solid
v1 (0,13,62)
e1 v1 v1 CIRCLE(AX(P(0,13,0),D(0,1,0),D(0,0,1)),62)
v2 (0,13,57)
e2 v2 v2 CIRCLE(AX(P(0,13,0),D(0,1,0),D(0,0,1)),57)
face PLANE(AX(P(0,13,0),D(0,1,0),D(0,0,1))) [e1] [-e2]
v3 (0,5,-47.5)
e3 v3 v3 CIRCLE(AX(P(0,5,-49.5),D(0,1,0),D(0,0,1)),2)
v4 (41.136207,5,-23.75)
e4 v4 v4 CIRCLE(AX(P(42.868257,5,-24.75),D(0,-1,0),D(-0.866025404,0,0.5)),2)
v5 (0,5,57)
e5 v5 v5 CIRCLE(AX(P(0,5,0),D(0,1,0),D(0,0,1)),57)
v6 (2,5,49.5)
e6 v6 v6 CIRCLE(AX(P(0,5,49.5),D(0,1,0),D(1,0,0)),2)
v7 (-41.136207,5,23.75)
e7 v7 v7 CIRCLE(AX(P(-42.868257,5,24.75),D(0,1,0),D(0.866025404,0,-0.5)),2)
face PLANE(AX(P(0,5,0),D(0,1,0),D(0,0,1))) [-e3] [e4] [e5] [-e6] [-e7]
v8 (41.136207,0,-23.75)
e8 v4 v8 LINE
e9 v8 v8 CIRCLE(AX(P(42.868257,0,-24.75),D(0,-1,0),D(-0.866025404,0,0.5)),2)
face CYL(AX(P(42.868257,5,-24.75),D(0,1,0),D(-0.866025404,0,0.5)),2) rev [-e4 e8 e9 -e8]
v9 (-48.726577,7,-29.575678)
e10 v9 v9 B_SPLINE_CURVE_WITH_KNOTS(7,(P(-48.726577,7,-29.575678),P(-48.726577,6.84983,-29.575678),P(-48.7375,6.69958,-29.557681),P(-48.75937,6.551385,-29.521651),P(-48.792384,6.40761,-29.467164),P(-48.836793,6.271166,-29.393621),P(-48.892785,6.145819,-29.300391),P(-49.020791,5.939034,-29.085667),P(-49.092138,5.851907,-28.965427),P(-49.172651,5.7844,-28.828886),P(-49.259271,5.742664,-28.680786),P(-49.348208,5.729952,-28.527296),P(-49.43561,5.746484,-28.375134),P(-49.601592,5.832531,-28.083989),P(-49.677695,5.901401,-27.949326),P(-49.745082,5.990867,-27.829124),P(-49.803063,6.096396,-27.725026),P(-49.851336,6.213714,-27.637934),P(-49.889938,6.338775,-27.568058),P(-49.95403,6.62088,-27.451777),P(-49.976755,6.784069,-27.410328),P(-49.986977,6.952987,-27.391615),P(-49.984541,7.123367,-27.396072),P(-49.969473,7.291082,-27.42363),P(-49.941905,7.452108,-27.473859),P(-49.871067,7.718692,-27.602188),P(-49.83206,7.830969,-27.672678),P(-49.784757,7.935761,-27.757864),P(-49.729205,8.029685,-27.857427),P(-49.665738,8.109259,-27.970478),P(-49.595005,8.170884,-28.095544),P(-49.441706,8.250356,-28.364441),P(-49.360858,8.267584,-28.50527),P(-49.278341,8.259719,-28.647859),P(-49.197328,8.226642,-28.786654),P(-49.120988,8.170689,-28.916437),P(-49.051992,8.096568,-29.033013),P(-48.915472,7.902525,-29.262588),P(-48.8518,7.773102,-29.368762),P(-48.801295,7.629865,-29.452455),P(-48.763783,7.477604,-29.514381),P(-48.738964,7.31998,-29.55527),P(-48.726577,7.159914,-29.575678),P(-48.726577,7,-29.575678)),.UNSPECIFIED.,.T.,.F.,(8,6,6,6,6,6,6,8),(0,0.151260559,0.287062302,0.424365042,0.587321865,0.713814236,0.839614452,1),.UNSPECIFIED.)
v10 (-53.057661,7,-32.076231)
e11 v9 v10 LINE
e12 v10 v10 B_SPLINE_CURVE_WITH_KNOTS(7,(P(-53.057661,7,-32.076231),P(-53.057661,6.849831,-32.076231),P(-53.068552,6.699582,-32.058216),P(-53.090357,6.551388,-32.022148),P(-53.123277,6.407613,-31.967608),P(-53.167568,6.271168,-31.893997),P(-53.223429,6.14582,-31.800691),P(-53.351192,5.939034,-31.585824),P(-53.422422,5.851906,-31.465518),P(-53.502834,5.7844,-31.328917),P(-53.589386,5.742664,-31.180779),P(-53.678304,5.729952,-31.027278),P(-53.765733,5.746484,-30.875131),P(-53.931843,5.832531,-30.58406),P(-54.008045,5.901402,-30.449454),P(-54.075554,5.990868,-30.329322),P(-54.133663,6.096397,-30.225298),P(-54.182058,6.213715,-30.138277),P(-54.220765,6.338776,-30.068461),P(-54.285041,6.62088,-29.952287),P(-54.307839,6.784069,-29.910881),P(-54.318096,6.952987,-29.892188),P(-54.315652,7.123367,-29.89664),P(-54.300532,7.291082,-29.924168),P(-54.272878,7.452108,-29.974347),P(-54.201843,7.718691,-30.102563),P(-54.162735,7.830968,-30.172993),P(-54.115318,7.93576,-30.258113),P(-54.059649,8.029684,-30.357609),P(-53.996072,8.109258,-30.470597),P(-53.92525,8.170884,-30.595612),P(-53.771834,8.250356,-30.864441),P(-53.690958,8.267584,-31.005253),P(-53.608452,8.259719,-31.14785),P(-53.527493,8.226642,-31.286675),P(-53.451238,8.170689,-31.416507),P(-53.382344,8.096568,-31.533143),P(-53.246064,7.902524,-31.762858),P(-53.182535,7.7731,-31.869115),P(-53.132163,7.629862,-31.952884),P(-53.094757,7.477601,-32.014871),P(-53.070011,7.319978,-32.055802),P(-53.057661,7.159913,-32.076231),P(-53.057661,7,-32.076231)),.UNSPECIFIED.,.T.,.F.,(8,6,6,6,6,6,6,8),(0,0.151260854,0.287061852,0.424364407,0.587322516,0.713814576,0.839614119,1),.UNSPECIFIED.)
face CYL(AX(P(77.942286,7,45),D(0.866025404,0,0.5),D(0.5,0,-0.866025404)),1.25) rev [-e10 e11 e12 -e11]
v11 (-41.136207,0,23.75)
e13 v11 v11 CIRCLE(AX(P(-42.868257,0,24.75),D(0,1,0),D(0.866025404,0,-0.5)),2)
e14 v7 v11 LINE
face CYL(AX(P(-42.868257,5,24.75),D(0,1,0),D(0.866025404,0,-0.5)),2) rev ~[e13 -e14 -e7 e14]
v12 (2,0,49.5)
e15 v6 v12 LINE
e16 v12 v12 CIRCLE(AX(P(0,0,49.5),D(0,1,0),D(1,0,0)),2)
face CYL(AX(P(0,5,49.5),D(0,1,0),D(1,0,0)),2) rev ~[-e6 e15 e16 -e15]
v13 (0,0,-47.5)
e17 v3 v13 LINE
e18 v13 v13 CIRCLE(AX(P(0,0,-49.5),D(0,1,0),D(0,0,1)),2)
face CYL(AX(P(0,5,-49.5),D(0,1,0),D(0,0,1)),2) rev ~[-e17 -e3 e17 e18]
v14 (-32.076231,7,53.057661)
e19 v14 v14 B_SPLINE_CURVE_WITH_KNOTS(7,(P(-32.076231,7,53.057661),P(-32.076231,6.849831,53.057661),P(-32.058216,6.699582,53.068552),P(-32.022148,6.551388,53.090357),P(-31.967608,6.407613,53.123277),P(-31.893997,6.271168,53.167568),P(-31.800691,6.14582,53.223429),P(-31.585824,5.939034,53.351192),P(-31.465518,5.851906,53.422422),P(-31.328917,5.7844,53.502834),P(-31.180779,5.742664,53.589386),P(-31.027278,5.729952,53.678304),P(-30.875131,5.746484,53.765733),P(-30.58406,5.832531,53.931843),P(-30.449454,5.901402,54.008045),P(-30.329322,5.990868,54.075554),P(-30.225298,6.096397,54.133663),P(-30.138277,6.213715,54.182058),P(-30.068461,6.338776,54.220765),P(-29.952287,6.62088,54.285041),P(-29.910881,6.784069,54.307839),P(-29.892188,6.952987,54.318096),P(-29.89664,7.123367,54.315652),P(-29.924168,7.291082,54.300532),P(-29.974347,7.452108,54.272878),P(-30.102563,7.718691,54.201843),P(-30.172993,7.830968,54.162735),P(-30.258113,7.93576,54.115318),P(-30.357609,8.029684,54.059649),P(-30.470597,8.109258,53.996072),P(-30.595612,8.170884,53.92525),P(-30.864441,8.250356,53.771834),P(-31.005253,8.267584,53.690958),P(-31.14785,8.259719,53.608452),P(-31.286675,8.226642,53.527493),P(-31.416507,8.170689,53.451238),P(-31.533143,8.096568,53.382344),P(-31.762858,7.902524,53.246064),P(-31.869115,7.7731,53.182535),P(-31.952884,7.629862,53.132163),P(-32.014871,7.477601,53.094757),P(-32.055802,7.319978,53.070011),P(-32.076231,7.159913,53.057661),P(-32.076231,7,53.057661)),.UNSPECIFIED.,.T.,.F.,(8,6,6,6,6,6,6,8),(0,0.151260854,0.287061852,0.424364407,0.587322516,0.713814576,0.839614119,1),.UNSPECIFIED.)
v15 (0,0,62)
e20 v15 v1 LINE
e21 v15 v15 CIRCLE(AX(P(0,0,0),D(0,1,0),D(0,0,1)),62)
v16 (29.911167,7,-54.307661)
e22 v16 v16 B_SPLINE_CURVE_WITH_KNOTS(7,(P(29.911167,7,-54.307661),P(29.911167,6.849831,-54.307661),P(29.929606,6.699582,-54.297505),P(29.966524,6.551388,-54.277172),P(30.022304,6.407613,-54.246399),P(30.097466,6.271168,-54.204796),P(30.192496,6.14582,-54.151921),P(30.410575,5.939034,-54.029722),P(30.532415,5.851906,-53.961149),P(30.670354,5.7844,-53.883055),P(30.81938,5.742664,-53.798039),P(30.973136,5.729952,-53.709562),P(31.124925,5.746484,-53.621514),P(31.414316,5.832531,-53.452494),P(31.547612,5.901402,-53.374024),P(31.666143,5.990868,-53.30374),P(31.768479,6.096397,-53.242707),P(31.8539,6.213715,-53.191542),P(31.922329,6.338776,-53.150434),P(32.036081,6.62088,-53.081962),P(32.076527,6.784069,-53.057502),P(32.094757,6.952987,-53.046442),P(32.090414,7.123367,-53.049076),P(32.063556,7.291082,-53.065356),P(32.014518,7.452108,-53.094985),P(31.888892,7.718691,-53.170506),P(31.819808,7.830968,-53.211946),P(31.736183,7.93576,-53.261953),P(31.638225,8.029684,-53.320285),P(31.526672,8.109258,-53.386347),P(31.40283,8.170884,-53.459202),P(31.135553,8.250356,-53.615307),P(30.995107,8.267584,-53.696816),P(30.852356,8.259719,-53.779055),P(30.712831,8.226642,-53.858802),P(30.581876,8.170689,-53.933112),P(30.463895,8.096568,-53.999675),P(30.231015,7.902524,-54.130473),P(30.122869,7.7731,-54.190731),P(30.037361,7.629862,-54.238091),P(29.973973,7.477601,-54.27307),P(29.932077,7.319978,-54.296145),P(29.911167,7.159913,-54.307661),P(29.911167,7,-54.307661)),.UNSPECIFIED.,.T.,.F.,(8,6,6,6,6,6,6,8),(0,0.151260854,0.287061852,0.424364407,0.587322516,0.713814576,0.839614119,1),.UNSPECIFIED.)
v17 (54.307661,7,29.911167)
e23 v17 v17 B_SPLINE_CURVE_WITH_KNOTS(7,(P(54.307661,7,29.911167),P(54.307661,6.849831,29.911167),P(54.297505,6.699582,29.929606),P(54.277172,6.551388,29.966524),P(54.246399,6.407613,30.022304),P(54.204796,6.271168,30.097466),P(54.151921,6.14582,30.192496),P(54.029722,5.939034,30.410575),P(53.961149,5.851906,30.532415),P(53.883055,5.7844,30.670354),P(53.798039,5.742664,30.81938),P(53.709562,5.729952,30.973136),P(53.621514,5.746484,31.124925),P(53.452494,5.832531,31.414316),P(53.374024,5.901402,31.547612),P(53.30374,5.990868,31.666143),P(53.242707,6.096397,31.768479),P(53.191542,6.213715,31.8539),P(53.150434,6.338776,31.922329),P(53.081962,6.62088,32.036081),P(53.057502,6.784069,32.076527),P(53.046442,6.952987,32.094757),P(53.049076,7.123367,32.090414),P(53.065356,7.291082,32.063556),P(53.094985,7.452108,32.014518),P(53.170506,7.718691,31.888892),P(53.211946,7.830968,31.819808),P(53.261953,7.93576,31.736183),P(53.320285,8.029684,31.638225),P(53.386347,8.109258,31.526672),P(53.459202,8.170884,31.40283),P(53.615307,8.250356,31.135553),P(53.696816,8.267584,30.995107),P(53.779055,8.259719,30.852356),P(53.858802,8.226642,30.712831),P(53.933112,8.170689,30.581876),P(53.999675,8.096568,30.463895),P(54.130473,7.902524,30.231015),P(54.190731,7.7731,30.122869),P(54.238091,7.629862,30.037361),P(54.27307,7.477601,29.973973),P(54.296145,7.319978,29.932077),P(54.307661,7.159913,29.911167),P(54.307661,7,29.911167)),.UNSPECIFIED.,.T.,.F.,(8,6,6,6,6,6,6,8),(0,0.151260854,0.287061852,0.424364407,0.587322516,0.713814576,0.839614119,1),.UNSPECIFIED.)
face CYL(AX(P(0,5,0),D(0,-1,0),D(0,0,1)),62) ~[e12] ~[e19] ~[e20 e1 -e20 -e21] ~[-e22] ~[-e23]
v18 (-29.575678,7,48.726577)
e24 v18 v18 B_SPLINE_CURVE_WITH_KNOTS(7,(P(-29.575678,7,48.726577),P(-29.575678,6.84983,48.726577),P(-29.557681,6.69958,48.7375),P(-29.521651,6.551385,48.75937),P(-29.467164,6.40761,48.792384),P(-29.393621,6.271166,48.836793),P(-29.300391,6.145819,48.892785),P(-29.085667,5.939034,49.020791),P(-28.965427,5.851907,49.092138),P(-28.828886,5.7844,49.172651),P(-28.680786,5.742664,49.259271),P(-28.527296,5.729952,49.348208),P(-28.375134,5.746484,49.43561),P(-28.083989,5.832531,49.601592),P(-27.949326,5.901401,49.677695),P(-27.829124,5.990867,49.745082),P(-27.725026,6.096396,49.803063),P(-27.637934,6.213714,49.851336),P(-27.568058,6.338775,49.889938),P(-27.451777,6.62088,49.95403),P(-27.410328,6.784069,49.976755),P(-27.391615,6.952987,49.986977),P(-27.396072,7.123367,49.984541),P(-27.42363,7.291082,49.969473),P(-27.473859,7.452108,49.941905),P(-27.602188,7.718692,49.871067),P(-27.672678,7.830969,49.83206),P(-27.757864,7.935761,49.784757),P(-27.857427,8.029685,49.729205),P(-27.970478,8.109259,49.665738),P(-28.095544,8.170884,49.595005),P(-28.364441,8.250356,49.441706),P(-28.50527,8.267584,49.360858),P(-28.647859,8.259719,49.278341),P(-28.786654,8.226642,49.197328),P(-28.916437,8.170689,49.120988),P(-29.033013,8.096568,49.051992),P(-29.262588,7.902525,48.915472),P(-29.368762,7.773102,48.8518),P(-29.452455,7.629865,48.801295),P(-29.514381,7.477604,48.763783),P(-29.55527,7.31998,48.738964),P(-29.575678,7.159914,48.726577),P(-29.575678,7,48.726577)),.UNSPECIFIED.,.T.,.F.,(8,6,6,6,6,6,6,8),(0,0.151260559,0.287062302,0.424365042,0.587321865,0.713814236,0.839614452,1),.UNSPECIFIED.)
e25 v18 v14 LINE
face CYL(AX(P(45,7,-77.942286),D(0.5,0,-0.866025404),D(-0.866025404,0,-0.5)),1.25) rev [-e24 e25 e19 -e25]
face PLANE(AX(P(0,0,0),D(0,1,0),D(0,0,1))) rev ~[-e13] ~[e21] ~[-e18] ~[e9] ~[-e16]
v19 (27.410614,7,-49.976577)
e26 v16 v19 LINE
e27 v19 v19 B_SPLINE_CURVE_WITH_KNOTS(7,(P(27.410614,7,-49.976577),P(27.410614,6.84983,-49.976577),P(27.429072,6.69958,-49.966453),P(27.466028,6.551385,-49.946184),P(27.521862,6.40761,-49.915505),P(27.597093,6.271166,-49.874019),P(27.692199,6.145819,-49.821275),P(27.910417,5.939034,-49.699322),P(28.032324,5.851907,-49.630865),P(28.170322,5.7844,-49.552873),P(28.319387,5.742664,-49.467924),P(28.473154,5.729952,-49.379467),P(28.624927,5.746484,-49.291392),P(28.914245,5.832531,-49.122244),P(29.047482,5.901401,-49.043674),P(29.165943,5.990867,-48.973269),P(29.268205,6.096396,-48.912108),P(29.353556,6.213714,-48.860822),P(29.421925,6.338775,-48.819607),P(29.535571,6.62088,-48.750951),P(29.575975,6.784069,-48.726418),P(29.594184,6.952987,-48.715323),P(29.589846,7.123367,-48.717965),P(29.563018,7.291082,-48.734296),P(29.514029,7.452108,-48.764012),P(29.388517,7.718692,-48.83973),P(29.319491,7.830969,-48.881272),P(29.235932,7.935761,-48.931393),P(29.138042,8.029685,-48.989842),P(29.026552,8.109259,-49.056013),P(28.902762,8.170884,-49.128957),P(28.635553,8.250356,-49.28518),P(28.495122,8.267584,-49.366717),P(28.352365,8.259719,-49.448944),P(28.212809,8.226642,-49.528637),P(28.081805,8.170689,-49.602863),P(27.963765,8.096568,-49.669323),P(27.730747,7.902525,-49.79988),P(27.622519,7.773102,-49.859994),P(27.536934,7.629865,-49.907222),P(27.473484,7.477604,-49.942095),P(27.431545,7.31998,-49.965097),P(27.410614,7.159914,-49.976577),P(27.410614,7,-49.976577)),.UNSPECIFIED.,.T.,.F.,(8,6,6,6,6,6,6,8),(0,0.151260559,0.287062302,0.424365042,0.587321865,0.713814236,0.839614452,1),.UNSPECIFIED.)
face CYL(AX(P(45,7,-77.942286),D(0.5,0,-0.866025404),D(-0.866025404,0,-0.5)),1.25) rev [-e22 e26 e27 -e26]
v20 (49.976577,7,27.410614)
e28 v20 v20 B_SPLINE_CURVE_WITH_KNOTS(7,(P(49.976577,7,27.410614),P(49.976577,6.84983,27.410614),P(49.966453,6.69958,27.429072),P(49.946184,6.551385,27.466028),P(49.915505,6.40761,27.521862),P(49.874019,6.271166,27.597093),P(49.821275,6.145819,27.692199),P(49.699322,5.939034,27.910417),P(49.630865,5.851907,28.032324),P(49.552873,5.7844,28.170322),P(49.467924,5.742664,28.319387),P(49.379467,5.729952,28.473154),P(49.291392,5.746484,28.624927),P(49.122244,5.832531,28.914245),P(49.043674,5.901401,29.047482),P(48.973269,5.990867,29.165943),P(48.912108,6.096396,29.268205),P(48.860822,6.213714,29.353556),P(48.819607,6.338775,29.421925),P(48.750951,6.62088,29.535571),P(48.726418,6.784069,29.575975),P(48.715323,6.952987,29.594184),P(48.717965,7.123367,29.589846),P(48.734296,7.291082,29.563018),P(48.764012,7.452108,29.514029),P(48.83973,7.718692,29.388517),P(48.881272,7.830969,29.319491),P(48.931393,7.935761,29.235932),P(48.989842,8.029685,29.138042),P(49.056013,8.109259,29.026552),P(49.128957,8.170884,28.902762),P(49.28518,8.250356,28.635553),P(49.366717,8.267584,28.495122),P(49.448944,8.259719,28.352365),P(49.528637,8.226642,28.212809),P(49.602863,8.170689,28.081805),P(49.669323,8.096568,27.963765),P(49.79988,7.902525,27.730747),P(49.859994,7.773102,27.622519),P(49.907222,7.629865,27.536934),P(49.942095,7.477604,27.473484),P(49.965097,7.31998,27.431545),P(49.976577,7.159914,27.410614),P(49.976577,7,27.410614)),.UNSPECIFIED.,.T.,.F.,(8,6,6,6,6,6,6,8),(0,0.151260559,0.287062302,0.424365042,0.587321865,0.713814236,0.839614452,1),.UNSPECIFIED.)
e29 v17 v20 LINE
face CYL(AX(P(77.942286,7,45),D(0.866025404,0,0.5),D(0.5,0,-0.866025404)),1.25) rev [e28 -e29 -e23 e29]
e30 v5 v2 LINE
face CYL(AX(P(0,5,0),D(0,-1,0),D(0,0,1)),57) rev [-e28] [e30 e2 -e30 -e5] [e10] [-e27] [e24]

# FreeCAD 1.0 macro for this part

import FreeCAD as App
import Part
import Sketcher

V = App.Vector
Q = App.Units.Quantity

doc = App.newDocument("Part")
body = doc.addObject("PartDesign::Body", "Body")

# Sketch on XZ plane
sketch1 = doc.addObject("Sketcher::SketchObject", "Sketch")
body.addObject(sketch1)
sketch1.AttachmentSupport = (doc.XZ_Plane, [""])
sketch1.MapMode = "FlatFace"
sketch1.addGeometry(Part.Circle(V(0, 0, 0), V(0, 0, 1), 62), False)
sketch1.addConstraint([
    Sketcher.Constraint("Coincident", 0, 3, -1, 1),
    Sketcher.Constraint("Diameter", 0, Q("124 mm")),
])
pad1 = doc.addObject("PartDesign::Pad", "Pad")
body.addObject(pad1)
pad1.Profile = sketch1
pad1.Length = 5
pad1.Reversed = True

# Sketch on XZ plane
sketch2 = doc.addObject("Sketcher::SketchObject", "Sketch001")
body.addObject(sketch2)
sketch2.AttachmentSupport = (doc.XZ_Plane, [""])
sketch2.MapMode = "FlatFace"
sketch2.AttachmentOffset = App.Placement(V(0, 0, -5), App.Rotation())
sketch2.addGeometry(Part.Circle(V(0, -49.5, 0), V(0, 0, 1), 2), False)
sketch2.addConstraint([
    Sketcher.Constraint("PointOnObject", 0, 3, -2),
    Sketcher.Constraint("Diameter", 0, Q("4 mm")),
    Sketcher.Constraint("DistanceY", 0, 3, -1, 1, Q("49.5 mm")),
])
pocket1 = doc.addObject("PartDesign::Pocket", "Pocket")
body.addObject(pocket1)
pocket1.Profile = sketch2
pocket1.Length = 5
pocket1.Reversed = True
doc.recompute()

polarpattern = doc.addObject("PartDesign::PolarPattern", "PolarPattern")
body.addObject(polarpattern)
polarpattern.Originals = [pocket1]
polarpattern.Axis = (doc.Y_Axis, [""])
polarpattern.Angle = 120
polarpattern.Occurrences = 2
body.Tip = polarpattern
doc.recompute()

datumplane = doc.addObject("PartDesign::Plane", "DatumPlane")
body.addObject(datumplane)
datumplane.Placement = App.Placement(V(0, 0, 0), App.Rotation(V(0.5, 0, -0.866025404), V(0, -1, 0), V(-0.866025404, 0, -0.5), "ZXY"))
mirrored = doc.addObject("PartDesign::Mirrored", "Mirrored")
body.addObject(mirrored)
mirrored.Originals = [pocket1]
mirrored.MirrorPlane = (datumplane, [""])
body.Tip = mirrored

# Sketch on XZ plane
sketch3 = doc.addObject("Sketcher::SketchObject", "Sketch002")
body.addObject(sketch3)
sketch3.AttachmentSupport = (doc.XZ_Plane, [""])
sketch3.MapMode = "FlatFace"
sketch3.AttachmentOffset = App.Placement(V(0, 0, -5), App.Rotation())
sketch3.addGeometry(Part.Circle(V(0, 49.5, 0), V(0, 0, 1), 2), False)
sketch3.addConstraint([
    Sketcher.Constraint("PointOnObject", 0, 3, -2),
    Sketcher.Constraint("Diameter", 0, Q("4 mm")),
    Sketcher.Constraint("DistanceY", -1, 1, 0, 3, Q("49.5 mm")),
])
pocket2 = doc.addObject("PartDesign::Pocket", "Pocket001")
body.addObject(pocket2)
pocket2.Profile = sketch3
pocket2.Length = 5
pocket2.Reversed = True

# Sketch on XZ plane
sketch4 = doc.addObject("Sketcher::SketchObject", "Sketch003")
body.addObject(sketch4)
sketch4.AttachmentSupport = (doc.XZ_Plane, [""])
sketch4.MapMode = "FlatFace"
sketch4.AttachmentOffset = App.Placement(V(0, 0, -5), App.Rotation())
sketch4.addGeometry([
    Part.Circle(V(0, 0, 0), V(0, 0, 1), 62),
    Part.Circle(V(0, 0, 0), V(0, 0, 1), 57),
], False)
sketch4.addConstraint([
    Sketcher.Constraint("Coincident", 0, 3, -1, 1),
    Sketcher.Constraint("Coincident", 1, 3, -1, 1),
    Sketcher.Constraint("Diameter", 0, Q("124 mm")),
    Sketcher.Constraint("Diameter", 1, Q("114 mm")),
])
pad2 = doc.addObject("PartDesign::Pad", "Pad001")
body.addObject(pad2)
pad2.Profile = sketch4
pad2.Length = 8
pad2.Reversed = True

# Sketch on an angled plane
sketch5 = doc.addObject("Sketcher::SketchObject", "Sketch004")
body.addObject(sketch5)
sketch5.Placement = App.Placement(V(77.942286, 0, 45), App.Rotation(V(-0.5, 0, 0.866025404), V(0, 1, 0), V(-0.866025404, 0, -0.5), "ZXY"))
sketch5.addGeometry(Part.Circle(V(0, 7, 0), V(0, 0, 1), 1.2), False)
sketch5.addConstraint([
    Sketcher.Constraint("PointOnObject", 0, 3, -2),
    Sketcher.Constraint("Diameter", 0, Q("2.5 mm")),
    Sketcher.Constraint("DistanceY", -1, 1, 0, 3, Q("7 mm")),
])
pocket3 = doc.addObject("PartDesign::Pocket", "Pocket002")
body.addObject(pocket3)
pocket3.Profile = sketch5
pocket3.Length = 192
pocket3.Reversed = True
doc.recompute()

polarpattern2 = doc.addObject("PartDesign::PolarPattern", "PolarPattern001")
body.addObject(polarpattern2)
polarpattern2.Originals = [pocket3]
polarpattern2.Axis = (doc.Y_Axis, [""])
polarpattern2.Angle = 90
polarpattern2.Occurrences = 2
body.Tip = polarpattern2

doc.recompute()
